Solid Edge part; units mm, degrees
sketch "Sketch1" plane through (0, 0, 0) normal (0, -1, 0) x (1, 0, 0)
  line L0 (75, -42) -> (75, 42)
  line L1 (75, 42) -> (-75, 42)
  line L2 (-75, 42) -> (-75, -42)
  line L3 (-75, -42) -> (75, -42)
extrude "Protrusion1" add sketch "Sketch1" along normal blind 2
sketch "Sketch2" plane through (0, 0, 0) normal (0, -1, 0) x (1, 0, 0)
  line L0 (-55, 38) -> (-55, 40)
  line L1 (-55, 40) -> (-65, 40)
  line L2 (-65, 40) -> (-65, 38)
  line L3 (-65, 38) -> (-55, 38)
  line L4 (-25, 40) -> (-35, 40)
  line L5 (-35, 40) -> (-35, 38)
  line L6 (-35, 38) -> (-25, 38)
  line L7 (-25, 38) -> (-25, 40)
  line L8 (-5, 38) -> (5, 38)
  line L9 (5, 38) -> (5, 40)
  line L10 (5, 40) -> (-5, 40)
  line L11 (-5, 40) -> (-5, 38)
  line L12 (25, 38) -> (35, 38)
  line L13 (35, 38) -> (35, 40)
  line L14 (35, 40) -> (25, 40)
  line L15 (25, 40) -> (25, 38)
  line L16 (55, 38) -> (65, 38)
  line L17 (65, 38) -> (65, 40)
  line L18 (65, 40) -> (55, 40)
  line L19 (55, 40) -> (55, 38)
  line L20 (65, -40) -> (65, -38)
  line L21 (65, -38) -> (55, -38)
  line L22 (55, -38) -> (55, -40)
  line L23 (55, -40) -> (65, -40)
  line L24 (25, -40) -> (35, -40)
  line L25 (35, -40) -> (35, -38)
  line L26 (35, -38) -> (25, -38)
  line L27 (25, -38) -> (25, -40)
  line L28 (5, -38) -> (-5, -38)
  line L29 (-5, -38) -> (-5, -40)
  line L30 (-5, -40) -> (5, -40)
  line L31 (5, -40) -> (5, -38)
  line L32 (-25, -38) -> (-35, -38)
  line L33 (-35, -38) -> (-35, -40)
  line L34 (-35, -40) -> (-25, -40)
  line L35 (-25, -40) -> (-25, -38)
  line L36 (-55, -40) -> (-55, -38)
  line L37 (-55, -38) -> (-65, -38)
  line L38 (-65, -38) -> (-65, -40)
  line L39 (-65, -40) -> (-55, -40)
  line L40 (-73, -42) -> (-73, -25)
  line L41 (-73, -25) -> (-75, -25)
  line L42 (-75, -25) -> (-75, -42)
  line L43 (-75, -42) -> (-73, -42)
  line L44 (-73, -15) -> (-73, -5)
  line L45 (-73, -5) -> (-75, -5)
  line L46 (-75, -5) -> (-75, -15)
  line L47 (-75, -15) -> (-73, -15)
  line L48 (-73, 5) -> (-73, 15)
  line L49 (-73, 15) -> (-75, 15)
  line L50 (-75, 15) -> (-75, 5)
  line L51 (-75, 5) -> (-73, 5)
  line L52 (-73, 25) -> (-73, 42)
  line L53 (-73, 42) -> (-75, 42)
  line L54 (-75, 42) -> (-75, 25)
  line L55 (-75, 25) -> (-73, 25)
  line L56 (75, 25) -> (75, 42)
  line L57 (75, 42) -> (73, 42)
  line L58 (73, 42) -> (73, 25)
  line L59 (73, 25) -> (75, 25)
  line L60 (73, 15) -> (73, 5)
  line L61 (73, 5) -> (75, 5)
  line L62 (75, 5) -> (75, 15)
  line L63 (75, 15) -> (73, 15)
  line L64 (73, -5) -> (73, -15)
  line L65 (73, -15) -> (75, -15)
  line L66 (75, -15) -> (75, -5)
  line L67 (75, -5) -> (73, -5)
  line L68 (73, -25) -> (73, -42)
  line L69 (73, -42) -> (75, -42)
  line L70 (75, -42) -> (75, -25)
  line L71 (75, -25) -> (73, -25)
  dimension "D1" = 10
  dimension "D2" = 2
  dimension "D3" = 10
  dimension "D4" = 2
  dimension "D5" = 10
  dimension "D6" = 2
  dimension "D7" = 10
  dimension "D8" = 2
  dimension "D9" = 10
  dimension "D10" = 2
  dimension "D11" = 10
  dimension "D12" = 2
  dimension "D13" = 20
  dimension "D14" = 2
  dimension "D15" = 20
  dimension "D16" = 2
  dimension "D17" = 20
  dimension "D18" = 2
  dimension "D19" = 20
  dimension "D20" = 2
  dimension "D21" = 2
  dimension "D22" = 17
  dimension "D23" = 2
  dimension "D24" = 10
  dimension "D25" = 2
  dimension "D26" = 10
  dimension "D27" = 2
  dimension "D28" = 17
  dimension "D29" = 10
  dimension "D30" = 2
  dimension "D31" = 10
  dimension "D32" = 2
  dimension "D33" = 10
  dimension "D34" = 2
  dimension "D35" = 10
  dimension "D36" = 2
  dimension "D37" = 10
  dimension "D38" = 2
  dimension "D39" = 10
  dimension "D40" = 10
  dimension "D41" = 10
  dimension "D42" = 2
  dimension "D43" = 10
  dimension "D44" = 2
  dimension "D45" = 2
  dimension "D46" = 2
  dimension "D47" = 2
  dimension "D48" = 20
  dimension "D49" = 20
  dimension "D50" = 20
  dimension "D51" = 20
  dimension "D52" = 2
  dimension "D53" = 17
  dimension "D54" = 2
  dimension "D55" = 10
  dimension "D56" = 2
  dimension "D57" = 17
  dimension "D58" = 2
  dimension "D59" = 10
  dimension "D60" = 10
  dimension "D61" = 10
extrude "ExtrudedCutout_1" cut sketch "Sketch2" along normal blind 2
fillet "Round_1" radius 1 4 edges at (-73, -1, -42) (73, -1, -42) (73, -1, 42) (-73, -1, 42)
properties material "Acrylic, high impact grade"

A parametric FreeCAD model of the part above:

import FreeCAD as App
import Part
import Sketcher
from FreeCAD import Vector
Q = App.Units.Quantity


def edges_at(feature, points):
    """Names of the edges that pass closest to the given points."""
    edges = feature.Shape.Edges
    near = lambda p: min(range(len(edges)), key=lambda i: edges[i].distToShape(Part.Vertex(*p))[0])
    return sorted({f"Edge{near(p) + 1}" for p in points})


def add_polygon(sketch, points):
    """Adds a closed chain of lines whose ends are joined by coincident constraints."""
    first, n = sketch.GeometryCount, len(points)
    for a, b in zip(points, points[1:] + points[:1]):
        sketch.addGeometry(Part.LineSegment(App.Vector(*a, 0), App.Vector(*b, 0)), False)
    for i in range(n):
        sketch.addConstraint(Sketcher.Constraint("Coincident", first + i, 2, first + (i + 1) % n, 1))

doc = App.newDocument("Part")
body = doc.addObject("PartDesign::Body", "Body")

sketch1 = body.newObject("Sketcher::SketchObject", "Sketch")
sketch1.AttachmentSupport = (doc.getObject("XZ_Plane"), [""])
sketch1.MapMode = "FlatFace"
add_polygon(sketch1, [(-75, -42), (75, -42), (75, 42), (-75, 42)])
sketch1.addConstraint([
    Sketcher.Constraint("Horizontal", 0),
    Sketcher.Constraint("Vertical", 1),
    Sketcher.Constraint("Horizontal", 2),
    Sketcher.Constraint("Vertical", 3),
    Sketcher.Constraint("Symmetric", 0, 2, 2, 2, -1, 1),
    Sketcher.Constraint("DistanceX", 0, 1, 0, 2, Q("150 mm")),
    Sketcher.Constraint("DistanceY", 1, 1, 1, 2, Q("84 mm")),
])
pad1 = body.newObject("PartDesign::Pad", "Pad")
pad1.Profile = sketch1
pad1.Length = 2

sketch2 = body.newObject("Sketcher::SketchObject", "Sketch001")
sketch2.AttachmentSupport = (doc.getObject("XZ_Plane"), [""])
sketch2.MapMode = "FlatFace"
add_polygon(sketch2, [(-65, 38), (-55, 38), (-55, 40), (-65, 40)])
add_polygon(sketch2, [(-25, 38), (-25, 40), (-35, 40), (-35, 38)])
add_polygon(sketch2, [(-5, 40), (-5, 38), (5, 38), (5, 40)])
add_polygon(sketch2, [(25, 40), (25, 38), (35, 38), (35, 40)])
add_polygon(sketch2, [(55, 40), (55, 38), (65, 38), (65, 40)])
add_polygon(sketch2, [(55, -40), (65, -40), (65, -38), (55, -38)])
add_polygon(sketch2, [(25, -38), (25, -40), (35, -40), (35, -38)])
add_polygon(sketch2, [(5, -40), (5, -38), (-5, -38), (-5, -40)])
add_polygon(sketch2, [(-25, -40), (-25, -38), (-35, -38), (-35, -40)])
add_polygon(sketch2, [(-65, -40), (-55, -40), (-55, -38), (-65, -38)])
add_polygon(sketch2, [(-75, -42), (-73, -42), (-73, -25), (-75, -25)])
add_polygon(sketch2, [(-75, -15), (-73, -15), (-73, -5), (-75, -5)])
add_polygon(sketch2, [(-75, 5), (-73, 5), (-73, 15), (-75, 15)])
add_polygon(sketch2, [(-75, 25), (-73, 25), (-73, 42), (-75, 42)])
add_polygon(sketch2, [(73, 25), (75, 25), (75, 42), (73, 42)])
add_polygon(sketch2, [(75, 15), (73, 15), (73, 5), (75, 5)])
add_polygon(sketch2, [(75, -5), (73, -5), (73, -15), (75, -15)])
add_polygon(sketch2, [(75, -25), (73, -25), (73, -42), (75, -42)])
sketch2.addConstraint([
    Sketcher.Constraint("Horizontal", 0),
    Sketcher.Constraint("Vertical", 1),
    Sketcher.Constraint("Horizontal", 2),
    Sketcher.Constraint("Vertical", 3),
    Sketcher.Constraint("Vertical", 4),
    Sketcher.Constraint("Horizontal", 5),
    Sketcher.Constraint("Vertical", 6),
    Sketcher.Constraint("Horizontal", 7),
    Sketcher.Constraint("Vertical", 8),
    Sketcher.Constraint("Horizontal", 9),
    Sketcher.Constraint("Vertical", 10),
    Sketcher.Constraint("Horizontal", 11),
    Sketcher.Constraint("Vertical", 12),
    Sketcher.Constraint("Horizontal", 13),
    Sketcher.Constraint("Vertical", 14),
    Sketcher.Constraint("Horizontal", 15),
    Sketcher.Constraint("Vertical", 16),
    Sketcher.Constraint("Horizontal", 17),
    Sketcher.Constraint("Vertical", 18),
    Sketcher.Constraint("Horizontal", 19),
    Sketcher.Constraint("Horizontal", 20),
    Sketcher.Constraint("Vertical", 21),
    Sketcher.Constraint("Horizontal", 22),
    Sketcher.Constraint("Vertical", 23),
    Sketcher.Constraint("Vertical", 24),
    Sketcher.Constraint("Horizontal", 25),
    Sketcher.Constraint("Vertical", 26),
    Sketcher.Constraint("Horizontal", 27),
    Sketcher.Constraint("Vertical", 28),
    Sketcher.Constraint("Horizontal", 29),
    Sketcher.Constraint("Vertical", 30),
    Sketcher.Constraint("Horizontal", 31),
    Sketcher.Constraint("Vertical", 32),
    Sketcher.Constraint("Horizontal", 33),
    Sketcher.Constraint("Vertical", 34),
    Sketcher.Constraint("Horizontal", 35),
    Sketcher.Constraint("Horizontal", 36),
    Sketcher.Constraint("Vertical", 37),
    Sketcher.Constraint("Horizontal", 38),
    Sketcher.Constraint("Vertical", 39),
    Sketcher.Constraint("Horizontal", 40),
    Sketcher.Constraint("Vertical", 41),
    Sketcher.Constraint("Horizontal", 42),
    Sketcher.Constraint("Vertical", 43),
    Sketcher.Constraint("Horizontal", 44),
    Sketcher.Constraint("Vertical", 45),
    Sketcher.Constraint("Horizontal", 46),
    Sketcher.Constraint("Vertical", 47),
    Sketcher.Constraint("Horizontal", 48),
    Sketcher.Constraint("Vertical", 49),
    Sketcher.Constraint("Horizontal", 50),
    Sketcher.Constraint("Vertical", 51),
    Sketcher.Constraint("Horizontal", 52),
    Sketcher.Constraint("Vertical", 53),
    Sketcher.Constraint("Horizontal", 54),
    Sketcher.Constraint("Vertical", 55),
    Sketcher.Constraint("Horizontal", 56),
    Sketcher.Constraint("Vertical", 57),
    Sketcher.Constraint("Horizontal", 58),
    Sketcher.Constraint("Vertical", 59),
    Sketcher.Constraint("Horizontal", 60),
    Sketcher.Constraint("Vertical", 61),
    Sketcher.Constraint("Horizontal", 62),
    Sketcher.Constraint("Vertical", 63),
    Sketcher.Constraint("Horizontal", 64),
    Sketcher.Constraint("Vertical", 65),
    Sketcher.Constraint("Horizontal", 66),
    Sketcher.Constraint("Vertical", 67),
    Sketcher.Constraint("Horizontal", 68),
    Sketcher.Constraint("Vertical", 69),
    Sketcher.Constraint("Horizontal", 70),
    Sketcher.Constraint("Vertical", 71),
    Sketcher.Constraint("Symmetric", 2, 2, 20, 2, -1, 1),
    Sketcher.Constraint("Symmetric", 0, 2, 22, 2, -1, 1),
    Sketcher.Constraint("Symmetric", 4, 2, 24, 2, -1, 1),
    Sketcher.Constraint("Symmetric", 6, 2, 26, 2, -1, 1),
    Sketcher.Constraint("Symmetric", 8, 2, 28, 2, -1, 1),
    Sketcher.Constraint("Symmetric", 10, 2, 30, 2, -1, 1),
    Sketcher.Constraint("Symmetric", 12, 2, 32, 2, -1, 1),
    Sketcher.Constraint("Symmetric", 14, 2, 34, 2, -1, 1),
    Sketcher.Constraint("Symmetric", 19, 2, 36, 2, -1, 1),
    Sketcher.Constraint("Symmetric", 17, 2, 38, 2, -1, 1),
    Sketcher.Constraint("Symmetric", 42, 2, 56, 2, -1, 1),
    Sketcher.Constraint("Symmetric", 40, 2, 58, 2, -1, 1),
    Sketcher.Constraint("Symmetric", 44, 2, 60, 2, -1, 1),
    Sketcher.Constraint("Symmetric", 46, 2, 62, 2, -1, 1),
    Sketcher.Constraint("Symmetric", 48, 2, 64, 2, -1, 1),
    Sketcher.Constraint("Symmetric", 50, 2, 66, 2, -1, 1),
    Sketcher.Constraint("Symmetric", 52, 2, 68, 2, -1, 1),
    Sketcher.Constraint("Symmetric", 54, 2, 70, 2, -1, 1),
    Sketcher.Constraint("Symmetric", 7, 2, 12, 2, -2),
    Sketcher.Constraint("Symmetric", 5, 2, 14, 2, -2),
    Sketcher.Constraint("Symmetric", 0, 2, 16, 2, -2),
    Sketcher.Constraint("Symmetric", 2, 2, 18, 2, -2),
    Sketcher.Constraint("Symmetric", 55, 2, 56, 2, -2),
    Sketcher.Constraint("Symmetric", 53, 2, 58, 2, -2),
    Sketcher.Constraint("Symmetric", 49, 2, 60, 2, -2),
    Sketcher.Constraint("Symmetric", 51, 2, 62, 2, -2),
    Sketcher.Constraint("Horizontal", 2, 2, 4, 2),
    Sketcher.Constraint("Horizontal", 3, 2, 6, 2),
    Sketcher.Constraint("Horizontal", 7, 2, 8, 2),
    Sketcher.Constraint("Horizontal", 5, 2, 10, 2),
    Sketcher.Constraint("Vertical", 10, 2, 28, 2),
    Sketcher.Constraint("Vertical", 41, 2, 44, 2),
    Sketcher.Constraint("Vertical", 43, 2, 46, 2),
    Sketcher.Constraint("Equal", 2, 5),
    Sketcher.Constraint("Equal", 7, 9),
    Sketcher.Constraint("Equal", 70, 1),
    Sketcher.Constraint("Equal", 38, 45),
    Sketcher.Constraint("DistanceX", 0, 1, 0, 2, Q("10 mm")),
    Sketcher.Constraint("DistanceX", 40, 1, 40, 2, Q("2 mm")),
    Sketcher.Constraint("DistanceY", 41, 1, 41, 2, Q("17 mm")),
    Sketcher.Constraint("DistanceX", 0, 2, -1, 1, Q("55 mm")),
    Sketcher.Constraint("DistanceY", -1, 1, 0, 2, Q("38 mm")),
    Sketcher.Constraint("DistanceX", 4, 2, -1, 1, Q("25 mm")),
    Sketcher.Constraint("DistanceX", 40, 2, -1, 1, Q("73 mm")),
    Sketcher.Constraint("DistanceY", 40, 2, -1, 1, Q("42 mm")),
    Sketcher.Constraint("DistanceY", 44, 2, -1, 1, Q("15 mm")),
])
pocket1 = body.newObject("PartDesign::Pocket", "Pocket")
pocket1.Profile = sketch2
pocket1.Length = 2
pocket1.Reversed = True
doc.recompute()

fillet = body.newObject("PartDesign::Fillet", "Fillet")
fillet.Base = (pocket1, edges_at(pocket1, [
    (-73, -1, -42),
    (73, -1, -42),
    (73, -1, 42),
    (-73, -1, 42),
]))
fillet.Radius = 1

doc.recompute()
